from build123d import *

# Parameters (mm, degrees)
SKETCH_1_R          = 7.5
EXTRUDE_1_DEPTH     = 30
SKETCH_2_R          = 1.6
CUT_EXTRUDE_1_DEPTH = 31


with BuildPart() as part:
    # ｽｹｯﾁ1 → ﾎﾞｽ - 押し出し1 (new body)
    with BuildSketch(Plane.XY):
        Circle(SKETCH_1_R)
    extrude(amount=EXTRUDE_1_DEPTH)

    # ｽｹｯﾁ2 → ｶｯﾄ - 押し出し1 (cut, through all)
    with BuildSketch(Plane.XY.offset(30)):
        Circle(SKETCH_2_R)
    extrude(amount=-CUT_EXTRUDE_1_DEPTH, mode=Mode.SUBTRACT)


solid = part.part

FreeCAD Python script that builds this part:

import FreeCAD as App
import Part
import Sketcher

V = App.Vector
Q = App.Units.Quantity

doc = App.newDocument("Part")
body = doc.addObject("PartDesign::Body", "Body")

sketch1 = body.newObject("Sketcher::SketchObject", "Sketch")
sketch1.AttachmentSupport = (doc.getObject("XY_Plane"), [""])
sketch1.MapMode = "FlatFace"
sketch1.addGeometry(Part.Circle(V(0, 0, 0), V(0, 0, 1), 8), False)
sketch1.addConstraint([
    Sketcher.Constraint("Coincident", 0, 3, -1, 1),
    Sketcher.Constraint("Diameter", 0, Q("15 mm")),
])
pad1 = body.newObject("PartDesign::Pad", "Pad")
pad1.Profile = sketch1
pad1.Length = 30

sketch2 = body.newObject("Sketcher::SketchObject", "Sketch001")
sketch2.AttachmentSupport = (doc.getObject("XY_Plane"), [""])
sketch2.MapMode = "FlatFace"
sketch2.AttachmentOffset = App.Placement(V(0, 0, 30), App.Rotation())
sketch2.addGeometry(Part.Circle(V(0, 0, 0), V(0, 0, 1), 1.6), False)
sketch2.addConstraint([
    Sketcher.Constraint("Coincident", 0, 3, -1, 1),
    Sketcher.Constraint("Diameter", 0, Q("3.2 mm")),
])
pocket1 = body.newObject("PartDesign::Pocket", "Pocket")
pocket1.Profile = sketch2
pocket1.Type = "ThroughAll"

doc.recompute()
